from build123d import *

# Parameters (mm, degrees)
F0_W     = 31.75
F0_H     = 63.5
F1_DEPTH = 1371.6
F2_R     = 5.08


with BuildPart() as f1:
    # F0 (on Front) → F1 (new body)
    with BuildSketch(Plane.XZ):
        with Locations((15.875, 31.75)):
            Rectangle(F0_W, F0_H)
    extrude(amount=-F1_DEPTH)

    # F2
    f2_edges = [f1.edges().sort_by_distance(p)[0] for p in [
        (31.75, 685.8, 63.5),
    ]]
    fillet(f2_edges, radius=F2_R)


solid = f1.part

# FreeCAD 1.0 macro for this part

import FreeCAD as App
import Part
import Sketcher
Q = App.Units.Quantity


def edges_at(feature, points):
    """Names of the edges that pass closest to the given points."""
    edges = feature.Shape.Edges
    near = lambda p: min(range(len(edges)), key=lambda i: edges[i].distToShape(Part.Vertex(*p))[0])
    return sorted({f"Edge{near(p) + 1}" for p in points})


def add_polygon(sketch, points):
    """Adds a closed chain of lines whose ends are joined by coincident constraints."""
    first, n = sketch.GeometryCount, len(points)
    for a, b in zip(points, points[1:] + points[:1]):
        sketch.addGeometry(Part.LineSegment(App.Vector(*a, 0), App.Vector(*b, 0)), False)
    for i in range(n):
        sketch.addConstraint(Sketcher.Constraint("Coincident", first + i, 2, first + (i + 1) % n, 1))

doc = App.newDocument("Part")
body = doc.addObject("PartDesign::Body", "Body")

sketch1 = body.newObject("Sketcher::SketchObject", "Sketch")
sketch1.AttachmentSupport = (doc.getObject("XZ_Plane"), [""])
sketch1.MapMode = "FlatFace"
add_polygon(sketch1, [(0, 64), (0, 0), (32, 0), (32, 64)])
sketch1.addConstraint(Sketcher.Constraint("Vertical", 0))
sketch1.addConstraint(Sketcher.Constraint("Horizontal", 1))
sketch1.addConstraint(Sketcher.Constraint("Vertical", 2))
sketch1.addConstraint(Sketcher.Constraint("Horizontal", 3))
sketch1.addConstraint(Sketcher.Constraint("Coincident", 0, 2, -1, 1))
sketch1.addConstraint(Sketcher.Constraint("DistanceY", 0, 2, 0, 1, Q("2.5 in")))
sketch1.addConstraint(Sketcher.Constraint("DistanceX", 1, 1, 1, 2, Q("1.25 in")))
pad1 = body.newObject("PartDesign::Pad", "Pad")
pad1.Profile = sketch1
pad1.Length = Q("54 in")
pad1.Reversed = True
doc.recompute()

fillet = body.newObject("PartDesign::Fillet", "Fillet")
fillet.Base = (pad1, edges_at(pad1, [(31.75, 685.8, 63.5)]))
fillet.Radius = Q("0.2 in")

doc.recompute()
